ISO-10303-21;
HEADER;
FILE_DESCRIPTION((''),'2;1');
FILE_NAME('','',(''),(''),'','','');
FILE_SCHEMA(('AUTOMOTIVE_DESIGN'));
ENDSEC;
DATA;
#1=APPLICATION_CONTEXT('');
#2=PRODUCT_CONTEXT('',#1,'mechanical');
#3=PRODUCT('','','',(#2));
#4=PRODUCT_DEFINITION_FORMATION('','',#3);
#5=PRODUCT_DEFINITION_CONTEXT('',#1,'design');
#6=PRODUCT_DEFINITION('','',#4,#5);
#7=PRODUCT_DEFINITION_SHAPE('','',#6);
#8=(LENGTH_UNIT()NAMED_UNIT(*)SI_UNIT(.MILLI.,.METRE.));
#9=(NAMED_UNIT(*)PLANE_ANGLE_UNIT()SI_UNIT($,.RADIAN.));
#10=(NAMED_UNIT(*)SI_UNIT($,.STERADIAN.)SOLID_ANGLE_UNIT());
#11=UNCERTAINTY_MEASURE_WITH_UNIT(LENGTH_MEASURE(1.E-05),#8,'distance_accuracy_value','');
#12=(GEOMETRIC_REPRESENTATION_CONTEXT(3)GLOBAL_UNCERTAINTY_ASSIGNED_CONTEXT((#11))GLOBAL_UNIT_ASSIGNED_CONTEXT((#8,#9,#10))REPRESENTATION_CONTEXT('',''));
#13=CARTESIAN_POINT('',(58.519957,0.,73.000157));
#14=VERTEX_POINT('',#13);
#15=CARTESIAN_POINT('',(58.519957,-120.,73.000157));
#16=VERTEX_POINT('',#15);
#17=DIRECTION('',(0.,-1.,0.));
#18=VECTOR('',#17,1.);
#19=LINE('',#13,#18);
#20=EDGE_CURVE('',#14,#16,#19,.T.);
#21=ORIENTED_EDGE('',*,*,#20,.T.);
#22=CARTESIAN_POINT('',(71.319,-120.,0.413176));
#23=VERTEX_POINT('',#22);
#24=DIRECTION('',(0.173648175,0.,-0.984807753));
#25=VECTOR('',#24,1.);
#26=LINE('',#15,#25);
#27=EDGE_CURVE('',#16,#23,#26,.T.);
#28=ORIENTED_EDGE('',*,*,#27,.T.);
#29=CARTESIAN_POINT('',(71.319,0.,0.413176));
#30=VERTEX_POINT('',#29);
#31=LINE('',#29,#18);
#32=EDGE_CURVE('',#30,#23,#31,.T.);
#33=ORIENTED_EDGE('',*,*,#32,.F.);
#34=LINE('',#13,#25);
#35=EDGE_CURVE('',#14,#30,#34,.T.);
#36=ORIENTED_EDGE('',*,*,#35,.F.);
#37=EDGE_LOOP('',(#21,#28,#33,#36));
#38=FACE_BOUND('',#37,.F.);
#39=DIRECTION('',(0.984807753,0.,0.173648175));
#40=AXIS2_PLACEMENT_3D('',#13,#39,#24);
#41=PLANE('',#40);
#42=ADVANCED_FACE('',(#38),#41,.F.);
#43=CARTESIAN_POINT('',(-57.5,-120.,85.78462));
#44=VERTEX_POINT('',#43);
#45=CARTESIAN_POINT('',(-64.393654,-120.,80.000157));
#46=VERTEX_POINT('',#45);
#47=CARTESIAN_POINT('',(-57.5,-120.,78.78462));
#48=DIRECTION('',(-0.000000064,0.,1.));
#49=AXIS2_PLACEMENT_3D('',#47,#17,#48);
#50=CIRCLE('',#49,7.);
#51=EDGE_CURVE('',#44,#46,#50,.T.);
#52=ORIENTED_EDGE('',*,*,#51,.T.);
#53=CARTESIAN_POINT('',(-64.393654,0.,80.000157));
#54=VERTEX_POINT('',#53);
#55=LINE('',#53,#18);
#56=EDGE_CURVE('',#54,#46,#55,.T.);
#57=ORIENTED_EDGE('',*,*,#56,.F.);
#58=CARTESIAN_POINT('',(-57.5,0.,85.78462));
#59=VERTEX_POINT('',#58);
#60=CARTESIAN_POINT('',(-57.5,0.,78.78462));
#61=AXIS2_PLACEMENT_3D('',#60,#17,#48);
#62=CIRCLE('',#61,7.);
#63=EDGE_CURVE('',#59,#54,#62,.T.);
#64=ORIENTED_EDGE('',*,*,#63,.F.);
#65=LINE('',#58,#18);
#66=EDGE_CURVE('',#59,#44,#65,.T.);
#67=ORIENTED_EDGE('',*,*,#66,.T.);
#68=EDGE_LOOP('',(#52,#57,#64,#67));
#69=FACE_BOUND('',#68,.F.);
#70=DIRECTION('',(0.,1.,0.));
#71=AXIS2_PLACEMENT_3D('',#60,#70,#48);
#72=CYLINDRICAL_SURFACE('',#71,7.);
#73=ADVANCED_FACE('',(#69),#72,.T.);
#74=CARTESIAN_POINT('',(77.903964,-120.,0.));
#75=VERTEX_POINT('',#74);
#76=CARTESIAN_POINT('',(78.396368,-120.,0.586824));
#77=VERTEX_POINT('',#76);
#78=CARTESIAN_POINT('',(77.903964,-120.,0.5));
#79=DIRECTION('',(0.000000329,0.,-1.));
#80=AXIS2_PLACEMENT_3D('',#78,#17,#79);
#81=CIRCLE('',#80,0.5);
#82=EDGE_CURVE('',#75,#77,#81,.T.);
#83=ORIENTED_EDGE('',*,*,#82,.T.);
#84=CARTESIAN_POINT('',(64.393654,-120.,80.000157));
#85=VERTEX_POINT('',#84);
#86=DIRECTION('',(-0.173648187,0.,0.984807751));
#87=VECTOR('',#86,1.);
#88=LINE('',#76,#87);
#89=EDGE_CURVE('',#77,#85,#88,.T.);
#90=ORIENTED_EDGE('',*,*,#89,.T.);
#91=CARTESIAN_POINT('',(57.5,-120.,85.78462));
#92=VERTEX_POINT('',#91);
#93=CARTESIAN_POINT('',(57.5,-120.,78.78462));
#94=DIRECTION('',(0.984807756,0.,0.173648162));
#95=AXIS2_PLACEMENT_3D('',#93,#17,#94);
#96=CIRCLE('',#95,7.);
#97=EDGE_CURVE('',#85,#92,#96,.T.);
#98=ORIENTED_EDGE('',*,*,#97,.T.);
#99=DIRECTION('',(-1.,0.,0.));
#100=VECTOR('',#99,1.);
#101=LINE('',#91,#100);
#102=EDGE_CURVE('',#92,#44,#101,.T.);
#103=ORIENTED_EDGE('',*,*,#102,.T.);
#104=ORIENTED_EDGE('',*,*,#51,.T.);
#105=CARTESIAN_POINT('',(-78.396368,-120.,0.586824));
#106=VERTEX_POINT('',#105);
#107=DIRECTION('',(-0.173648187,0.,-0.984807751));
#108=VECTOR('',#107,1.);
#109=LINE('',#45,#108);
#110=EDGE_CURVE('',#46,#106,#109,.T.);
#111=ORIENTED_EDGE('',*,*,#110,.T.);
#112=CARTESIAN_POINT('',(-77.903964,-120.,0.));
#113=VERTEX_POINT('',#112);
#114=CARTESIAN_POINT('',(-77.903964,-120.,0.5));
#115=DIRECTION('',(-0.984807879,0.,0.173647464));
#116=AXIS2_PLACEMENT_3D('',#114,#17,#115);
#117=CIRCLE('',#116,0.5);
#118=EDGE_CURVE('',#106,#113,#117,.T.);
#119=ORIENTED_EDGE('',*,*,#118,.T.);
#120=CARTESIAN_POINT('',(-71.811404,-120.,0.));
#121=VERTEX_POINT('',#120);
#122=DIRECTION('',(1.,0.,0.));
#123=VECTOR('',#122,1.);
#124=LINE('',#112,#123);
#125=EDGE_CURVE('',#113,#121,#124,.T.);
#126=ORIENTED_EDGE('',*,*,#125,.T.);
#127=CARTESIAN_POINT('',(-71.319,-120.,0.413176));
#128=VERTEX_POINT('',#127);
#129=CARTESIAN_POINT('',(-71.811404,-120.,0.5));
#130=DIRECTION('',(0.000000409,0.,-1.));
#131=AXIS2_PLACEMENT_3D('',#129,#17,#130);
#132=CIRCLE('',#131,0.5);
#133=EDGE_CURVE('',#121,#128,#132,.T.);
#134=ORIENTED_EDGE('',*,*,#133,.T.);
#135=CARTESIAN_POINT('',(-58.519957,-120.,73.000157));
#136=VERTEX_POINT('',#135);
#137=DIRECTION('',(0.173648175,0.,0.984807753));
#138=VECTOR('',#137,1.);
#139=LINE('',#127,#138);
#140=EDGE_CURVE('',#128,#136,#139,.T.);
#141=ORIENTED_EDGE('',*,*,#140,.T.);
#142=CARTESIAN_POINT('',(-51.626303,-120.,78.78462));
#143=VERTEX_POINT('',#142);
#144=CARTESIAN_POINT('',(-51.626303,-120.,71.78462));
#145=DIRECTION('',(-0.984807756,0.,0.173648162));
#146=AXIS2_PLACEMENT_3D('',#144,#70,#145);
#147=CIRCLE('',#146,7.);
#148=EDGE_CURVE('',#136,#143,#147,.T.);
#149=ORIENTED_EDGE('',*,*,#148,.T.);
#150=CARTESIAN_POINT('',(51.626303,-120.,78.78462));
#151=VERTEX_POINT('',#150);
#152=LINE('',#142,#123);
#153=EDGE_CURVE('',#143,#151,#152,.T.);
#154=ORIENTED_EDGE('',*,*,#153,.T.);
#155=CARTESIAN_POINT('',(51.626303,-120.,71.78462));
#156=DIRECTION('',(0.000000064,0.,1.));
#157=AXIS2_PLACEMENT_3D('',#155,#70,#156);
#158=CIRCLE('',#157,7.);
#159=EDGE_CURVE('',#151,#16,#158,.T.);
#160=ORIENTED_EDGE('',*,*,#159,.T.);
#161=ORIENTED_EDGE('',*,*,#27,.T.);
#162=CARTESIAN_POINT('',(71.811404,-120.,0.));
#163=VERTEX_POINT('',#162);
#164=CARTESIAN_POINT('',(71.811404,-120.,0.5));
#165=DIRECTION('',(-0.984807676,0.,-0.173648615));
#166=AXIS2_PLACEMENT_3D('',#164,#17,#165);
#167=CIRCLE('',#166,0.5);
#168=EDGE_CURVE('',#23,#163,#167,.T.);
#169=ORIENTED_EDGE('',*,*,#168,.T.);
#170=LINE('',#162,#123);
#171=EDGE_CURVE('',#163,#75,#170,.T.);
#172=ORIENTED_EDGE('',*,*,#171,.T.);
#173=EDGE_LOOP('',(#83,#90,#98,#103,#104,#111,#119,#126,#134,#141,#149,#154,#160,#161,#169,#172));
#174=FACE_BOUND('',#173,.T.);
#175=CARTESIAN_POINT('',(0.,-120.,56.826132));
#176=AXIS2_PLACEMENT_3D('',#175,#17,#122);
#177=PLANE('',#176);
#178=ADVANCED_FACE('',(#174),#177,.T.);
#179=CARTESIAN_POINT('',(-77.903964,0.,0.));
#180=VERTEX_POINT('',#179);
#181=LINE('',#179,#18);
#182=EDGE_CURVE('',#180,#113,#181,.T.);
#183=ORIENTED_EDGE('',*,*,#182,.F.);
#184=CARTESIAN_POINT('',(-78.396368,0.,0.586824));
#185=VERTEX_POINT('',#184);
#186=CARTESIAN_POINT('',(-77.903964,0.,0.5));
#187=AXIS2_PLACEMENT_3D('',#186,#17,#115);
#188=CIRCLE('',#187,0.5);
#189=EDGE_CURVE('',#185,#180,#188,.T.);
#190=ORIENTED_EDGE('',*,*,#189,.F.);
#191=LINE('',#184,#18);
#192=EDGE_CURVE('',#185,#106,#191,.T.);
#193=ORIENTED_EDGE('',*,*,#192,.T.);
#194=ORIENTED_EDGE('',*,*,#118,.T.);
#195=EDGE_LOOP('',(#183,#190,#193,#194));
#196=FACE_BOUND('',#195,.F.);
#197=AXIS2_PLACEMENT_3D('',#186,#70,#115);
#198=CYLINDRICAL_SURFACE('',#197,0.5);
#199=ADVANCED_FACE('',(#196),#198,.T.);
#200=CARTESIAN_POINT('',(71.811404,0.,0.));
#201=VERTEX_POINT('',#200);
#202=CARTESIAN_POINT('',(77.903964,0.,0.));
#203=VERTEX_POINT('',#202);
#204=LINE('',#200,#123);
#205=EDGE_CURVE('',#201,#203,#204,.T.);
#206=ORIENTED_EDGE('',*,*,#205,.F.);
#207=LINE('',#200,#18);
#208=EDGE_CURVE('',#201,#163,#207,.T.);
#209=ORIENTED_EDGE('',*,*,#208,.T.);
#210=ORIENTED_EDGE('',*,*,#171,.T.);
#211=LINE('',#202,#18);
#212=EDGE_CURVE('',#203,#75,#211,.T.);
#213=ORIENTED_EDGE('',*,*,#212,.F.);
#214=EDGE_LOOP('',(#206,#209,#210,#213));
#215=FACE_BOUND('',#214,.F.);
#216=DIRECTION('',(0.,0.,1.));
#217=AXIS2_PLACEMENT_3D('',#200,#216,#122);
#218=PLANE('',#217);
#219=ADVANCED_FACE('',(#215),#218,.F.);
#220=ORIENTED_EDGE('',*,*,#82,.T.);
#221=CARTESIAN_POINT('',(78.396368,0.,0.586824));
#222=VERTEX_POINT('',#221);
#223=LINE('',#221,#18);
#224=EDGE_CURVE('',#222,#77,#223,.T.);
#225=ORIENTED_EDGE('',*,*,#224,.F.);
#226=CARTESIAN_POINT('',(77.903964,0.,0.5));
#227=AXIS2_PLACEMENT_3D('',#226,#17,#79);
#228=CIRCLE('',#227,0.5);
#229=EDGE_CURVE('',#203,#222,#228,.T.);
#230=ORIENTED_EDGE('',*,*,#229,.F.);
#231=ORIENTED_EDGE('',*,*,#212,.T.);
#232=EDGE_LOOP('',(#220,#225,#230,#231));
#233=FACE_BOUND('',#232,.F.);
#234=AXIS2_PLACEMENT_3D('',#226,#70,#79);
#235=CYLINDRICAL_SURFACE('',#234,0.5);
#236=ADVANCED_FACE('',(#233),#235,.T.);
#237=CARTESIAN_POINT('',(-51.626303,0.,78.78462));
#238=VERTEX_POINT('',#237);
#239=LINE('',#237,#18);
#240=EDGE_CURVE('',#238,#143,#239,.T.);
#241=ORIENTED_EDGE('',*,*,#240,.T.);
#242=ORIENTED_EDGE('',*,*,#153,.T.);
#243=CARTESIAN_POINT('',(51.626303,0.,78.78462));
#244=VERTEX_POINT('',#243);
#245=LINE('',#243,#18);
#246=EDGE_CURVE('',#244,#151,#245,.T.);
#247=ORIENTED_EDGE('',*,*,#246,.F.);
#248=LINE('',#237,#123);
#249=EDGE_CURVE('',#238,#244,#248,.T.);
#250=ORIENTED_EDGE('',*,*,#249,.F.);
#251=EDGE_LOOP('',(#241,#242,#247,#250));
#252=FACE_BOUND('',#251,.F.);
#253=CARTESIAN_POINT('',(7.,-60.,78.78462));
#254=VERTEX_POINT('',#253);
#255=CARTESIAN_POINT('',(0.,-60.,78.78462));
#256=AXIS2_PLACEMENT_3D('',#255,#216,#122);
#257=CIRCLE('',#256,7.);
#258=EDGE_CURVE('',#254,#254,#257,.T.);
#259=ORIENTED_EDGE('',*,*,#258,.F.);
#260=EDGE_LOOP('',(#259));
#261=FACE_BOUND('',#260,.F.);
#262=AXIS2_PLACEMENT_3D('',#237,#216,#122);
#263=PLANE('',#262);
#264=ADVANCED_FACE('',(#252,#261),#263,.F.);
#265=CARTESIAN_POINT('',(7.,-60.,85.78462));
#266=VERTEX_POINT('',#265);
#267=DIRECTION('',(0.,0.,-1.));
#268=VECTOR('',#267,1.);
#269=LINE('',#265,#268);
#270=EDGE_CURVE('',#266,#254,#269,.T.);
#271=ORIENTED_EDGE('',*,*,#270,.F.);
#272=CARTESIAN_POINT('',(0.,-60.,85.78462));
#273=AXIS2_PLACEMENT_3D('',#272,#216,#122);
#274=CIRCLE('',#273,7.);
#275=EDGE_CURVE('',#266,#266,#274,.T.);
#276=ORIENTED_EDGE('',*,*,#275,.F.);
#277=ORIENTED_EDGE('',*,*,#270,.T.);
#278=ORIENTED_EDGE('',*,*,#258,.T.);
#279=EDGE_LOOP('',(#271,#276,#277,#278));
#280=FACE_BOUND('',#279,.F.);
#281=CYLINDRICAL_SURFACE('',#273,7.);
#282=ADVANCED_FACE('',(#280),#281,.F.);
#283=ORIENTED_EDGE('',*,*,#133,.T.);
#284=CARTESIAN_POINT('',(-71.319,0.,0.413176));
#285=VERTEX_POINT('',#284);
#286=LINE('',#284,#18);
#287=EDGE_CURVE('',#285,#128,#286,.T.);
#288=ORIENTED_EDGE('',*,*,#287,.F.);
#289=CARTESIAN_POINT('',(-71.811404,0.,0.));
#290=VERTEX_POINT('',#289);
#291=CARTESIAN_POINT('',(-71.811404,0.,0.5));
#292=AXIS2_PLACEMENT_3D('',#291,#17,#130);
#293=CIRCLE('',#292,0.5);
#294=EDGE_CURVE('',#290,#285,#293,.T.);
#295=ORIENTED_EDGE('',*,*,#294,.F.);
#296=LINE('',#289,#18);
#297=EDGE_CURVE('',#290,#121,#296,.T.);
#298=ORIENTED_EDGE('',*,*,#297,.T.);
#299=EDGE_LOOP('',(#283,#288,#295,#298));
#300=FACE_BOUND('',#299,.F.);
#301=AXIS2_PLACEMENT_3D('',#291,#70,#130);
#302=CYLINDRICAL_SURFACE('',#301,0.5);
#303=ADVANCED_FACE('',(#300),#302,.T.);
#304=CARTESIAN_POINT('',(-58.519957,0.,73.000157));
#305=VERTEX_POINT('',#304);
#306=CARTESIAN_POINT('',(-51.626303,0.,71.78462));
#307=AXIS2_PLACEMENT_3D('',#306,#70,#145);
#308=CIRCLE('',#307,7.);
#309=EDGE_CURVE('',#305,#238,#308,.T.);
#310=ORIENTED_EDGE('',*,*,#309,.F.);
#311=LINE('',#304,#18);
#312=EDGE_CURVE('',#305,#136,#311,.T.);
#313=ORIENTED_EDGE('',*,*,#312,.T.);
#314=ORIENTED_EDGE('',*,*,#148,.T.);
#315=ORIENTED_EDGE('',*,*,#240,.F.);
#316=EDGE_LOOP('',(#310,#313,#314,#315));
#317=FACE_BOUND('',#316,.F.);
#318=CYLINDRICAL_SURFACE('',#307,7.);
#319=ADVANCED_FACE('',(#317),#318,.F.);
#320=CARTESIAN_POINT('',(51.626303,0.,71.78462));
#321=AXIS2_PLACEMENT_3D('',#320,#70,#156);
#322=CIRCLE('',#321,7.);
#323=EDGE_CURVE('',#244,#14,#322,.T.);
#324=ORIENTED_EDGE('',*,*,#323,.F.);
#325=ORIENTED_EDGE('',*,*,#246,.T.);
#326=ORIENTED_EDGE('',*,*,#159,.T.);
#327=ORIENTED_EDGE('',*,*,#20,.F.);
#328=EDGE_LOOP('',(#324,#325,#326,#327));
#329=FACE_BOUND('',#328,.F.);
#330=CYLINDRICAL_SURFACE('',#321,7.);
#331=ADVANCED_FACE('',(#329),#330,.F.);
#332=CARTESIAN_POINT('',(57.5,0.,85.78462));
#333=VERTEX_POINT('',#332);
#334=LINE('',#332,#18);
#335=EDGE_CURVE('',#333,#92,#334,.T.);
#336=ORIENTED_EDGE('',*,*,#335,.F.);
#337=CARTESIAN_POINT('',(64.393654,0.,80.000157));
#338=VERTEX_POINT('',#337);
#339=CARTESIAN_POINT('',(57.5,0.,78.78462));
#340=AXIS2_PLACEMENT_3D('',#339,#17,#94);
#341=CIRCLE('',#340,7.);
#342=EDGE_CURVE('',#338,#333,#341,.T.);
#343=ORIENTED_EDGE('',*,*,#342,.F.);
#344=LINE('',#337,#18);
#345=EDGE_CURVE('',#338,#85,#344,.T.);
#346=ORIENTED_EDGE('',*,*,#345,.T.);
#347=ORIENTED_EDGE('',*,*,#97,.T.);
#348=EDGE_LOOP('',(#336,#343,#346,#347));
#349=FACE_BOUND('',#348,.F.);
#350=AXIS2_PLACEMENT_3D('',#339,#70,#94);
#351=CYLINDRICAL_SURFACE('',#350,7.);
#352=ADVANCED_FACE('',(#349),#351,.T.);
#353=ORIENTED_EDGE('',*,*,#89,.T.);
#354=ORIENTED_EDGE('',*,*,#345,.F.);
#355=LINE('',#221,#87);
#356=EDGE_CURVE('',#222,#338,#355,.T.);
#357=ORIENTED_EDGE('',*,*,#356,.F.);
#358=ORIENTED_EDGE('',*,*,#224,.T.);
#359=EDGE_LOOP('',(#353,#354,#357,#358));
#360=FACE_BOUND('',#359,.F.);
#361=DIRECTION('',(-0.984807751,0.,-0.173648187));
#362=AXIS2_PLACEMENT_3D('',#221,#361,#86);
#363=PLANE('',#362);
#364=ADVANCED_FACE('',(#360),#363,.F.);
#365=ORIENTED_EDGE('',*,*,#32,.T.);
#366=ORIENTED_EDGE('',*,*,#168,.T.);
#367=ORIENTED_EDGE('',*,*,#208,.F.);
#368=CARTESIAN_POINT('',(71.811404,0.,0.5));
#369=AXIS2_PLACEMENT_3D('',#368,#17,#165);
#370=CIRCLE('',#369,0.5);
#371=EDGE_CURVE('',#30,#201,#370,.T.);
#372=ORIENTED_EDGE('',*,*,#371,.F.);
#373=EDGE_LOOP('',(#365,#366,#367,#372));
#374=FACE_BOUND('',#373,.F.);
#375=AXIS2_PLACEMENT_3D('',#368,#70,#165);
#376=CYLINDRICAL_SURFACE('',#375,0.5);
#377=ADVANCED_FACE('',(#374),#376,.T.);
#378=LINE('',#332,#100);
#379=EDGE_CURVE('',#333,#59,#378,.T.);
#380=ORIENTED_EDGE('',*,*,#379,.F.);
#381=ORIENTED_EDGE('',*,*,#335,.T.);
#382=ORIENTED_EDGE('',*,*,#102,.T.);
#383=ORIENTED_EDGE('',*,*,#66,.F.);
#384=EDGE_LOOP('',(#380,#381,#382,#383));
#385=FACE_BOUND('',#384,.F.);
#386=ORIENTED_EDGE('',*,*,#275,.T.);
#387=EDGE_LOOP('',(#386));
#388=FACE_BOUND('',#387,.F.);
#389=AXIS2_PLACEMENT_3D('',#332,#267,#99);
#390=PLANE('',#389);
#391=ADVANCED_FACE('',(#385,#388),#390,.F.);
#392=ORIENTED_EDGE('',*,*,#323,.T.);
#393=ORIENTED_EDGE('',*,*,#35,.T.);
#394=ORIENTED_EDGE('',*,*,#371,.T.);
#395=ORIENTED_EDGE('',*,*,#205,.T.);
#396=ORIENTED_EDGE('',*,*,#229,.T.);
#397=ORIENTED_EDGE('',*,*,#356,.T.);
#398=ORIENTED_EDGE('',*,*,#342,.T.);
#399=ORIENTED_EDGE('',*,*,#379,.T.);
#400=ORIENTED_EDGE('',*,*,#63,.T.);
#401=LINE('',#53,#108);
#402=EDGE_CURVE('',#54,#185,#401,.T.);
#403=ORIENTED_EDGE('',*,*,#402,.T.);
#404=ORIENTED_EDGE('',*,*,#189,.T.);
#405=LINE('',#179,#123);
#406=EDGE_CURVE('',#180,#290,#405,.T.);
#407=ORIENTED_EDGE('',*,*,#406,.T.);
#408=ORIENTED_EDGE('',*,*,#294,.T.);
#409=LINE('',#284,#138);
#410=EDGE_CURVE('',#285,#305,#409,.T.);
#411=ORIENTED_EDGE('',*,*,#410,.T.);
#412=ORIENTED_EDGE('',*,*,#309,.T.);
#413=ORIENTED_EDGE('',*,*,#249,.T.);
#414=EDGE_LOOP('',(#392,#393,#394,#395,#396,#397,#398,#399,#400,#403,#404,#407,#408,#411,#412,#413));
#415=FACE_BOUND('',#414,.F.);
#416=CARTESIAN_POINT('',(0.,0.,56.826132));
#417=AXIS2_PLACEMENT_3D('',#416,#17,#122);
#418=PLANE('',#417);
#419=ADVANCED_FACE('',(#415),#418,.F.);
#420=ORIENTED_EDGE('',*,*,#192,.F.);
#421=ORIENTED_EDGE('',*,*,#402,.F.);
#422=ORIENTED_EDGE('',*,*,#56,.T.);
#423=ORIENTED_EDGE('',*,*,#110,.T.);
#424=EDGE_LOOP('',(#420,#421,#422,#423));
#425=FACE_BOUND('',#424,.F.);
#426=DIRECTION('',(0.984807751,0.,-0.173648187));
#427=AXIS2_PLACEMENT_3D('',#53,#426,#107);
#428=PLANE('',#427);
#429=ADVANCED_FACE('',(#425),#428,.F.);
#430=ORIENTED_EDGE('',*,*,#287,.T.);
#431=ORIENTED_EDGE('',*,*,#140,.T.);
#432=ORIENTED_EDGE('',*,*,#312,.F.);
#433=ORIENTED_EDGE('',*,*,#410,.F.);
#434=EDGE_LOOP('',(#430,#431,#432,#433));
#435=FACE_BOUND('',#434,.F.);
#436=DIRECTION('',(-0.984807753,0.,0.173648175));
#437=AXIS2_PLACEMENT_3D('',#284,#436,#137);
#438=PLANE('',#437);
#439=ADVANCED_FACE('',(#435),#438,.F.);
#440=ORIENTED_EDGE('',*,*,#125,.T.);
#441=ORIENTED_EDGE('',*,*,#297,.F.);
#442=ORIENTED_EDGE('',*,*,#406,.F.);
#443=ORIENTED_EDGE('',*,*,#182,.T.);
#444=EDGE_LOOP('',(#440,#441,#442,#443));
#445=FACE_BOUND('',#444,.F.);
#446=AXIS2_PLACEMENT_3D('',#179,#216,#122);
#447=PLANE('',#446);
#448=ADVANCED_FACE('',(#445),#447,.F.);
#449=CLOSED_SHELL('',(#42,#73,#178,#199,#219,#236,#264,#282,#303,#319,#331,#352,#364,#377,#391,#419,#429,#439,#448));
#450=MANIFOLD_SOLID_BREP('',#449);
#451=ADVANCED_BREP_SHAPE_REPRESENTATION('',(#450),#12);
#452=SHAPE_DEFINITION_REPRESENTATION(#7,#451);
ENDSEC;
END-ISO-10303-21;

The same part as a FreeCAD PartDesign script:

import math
import FreeCAD as App
import Part
import Sketcher

V = App.Vector
Q = App.Units.Quantity

doc = App.newDocument("Part")
body = doc.addObject("PartDesign::Body", "Body")

# Sketch on XZ plane
sketch1 = body.newObject("Sketcher::SketchObject", "Sketch")
sketch1.AttachmentSupport = (doc.getObject("XZ_Plane"), [""])
sketch1.MapMode = "FlatFace"
sketch1.addGeometry(Part.ArcOfCircle(Part.Circle(V(-71.8, 0.5, 0), V(0, 0, 1), 0.5), math.radians(-90), math.radians(-10)), False)
sketch1.addGeometry(Part.LineSegment(V(-71.3, 0.4, 0), V(-58.5, 73, 0)), False)
sketch1.addGeometry(Part.ArcOfCircle(Part.Circle(V(-51.6, 71.8, 0), V(0, 0, 1), 7), math.radians(90), math.radians(170)), False)
sketch1.addGeometry(Part.LineSegment(V(-51.6, 78.8, 0), V(51.6, 78.8, 0)), False)
sketch1.addGeometry(Part.ArcOfCircle(Part.Circle(V(51.6, 71.8, 0), V(0, 0, 1), 7), math.radians(10), math.radians(90)), False)
sketch1.addGeometry(Part.LineSegment(V(58.5, 73, 0), V(71.3, 0.4, 0)), False)
sketch1.addGeometry(Part.ArcOfCircle(Part.Circle(V(71.8, 0.5, 0), V(0, 0, 1), 0.5), math.radians(-170), math.radians(-90)), False)
sketch1.addGeometry(Part.LineSegment(V(71.8, 0, 0), V(77.9, 0, 0)), False)
sketch1.addGeometry(Part.ArcOfCircle(Part.Circle(V(77.9, 0.5, 0), V(0, 0, 1), 0.5), math.radians(-90), math.radians(10)), False)
sketch1.addGeometry(Part.LineSegment(V(78.4, 0.6, 0), V(64.4, 80, 0)), False)
sketch1.addGeometry(Part.ArcOfCircle(Part.Circle(V(57.5, 78.8, 0), V(0, 0, 1), 7), math.radians(10), math.radians(90)), False)
sketch1.addGeometry(Part.LineSegment(V(57.5, 85.8, 0), V(-57.5, 85.8, 0)), False)
sketch1.addGeometry(Part.ArcOfCircle(Part.Circle(V(-57.5, 78.8, 0), V(0, 0, 1), 7), math.radians(90), math.radians(170)), False)
sketch1.addGeometry(Part.LineSegment(V(-64.4, 80, 0), V(-78.4, 0.6, 0)), False)
sketch1.addGeometry(Part.ArcOfCircle(Part.Circle(V(-77.9, 0.5, 0), V(0, 0, 1), 0.5), math.radians(170), math.radians(270)), False)
sketch1.addGeometry(Part.LineSegment(V(-77.9, 0, 0), V(-71.8, 0, 0)), False)
sketch1.addConstraint(Sketcher.Constraint("Tangent", 0, 2, 1, 1))
sketch1.addConstraint(Sketcher.Constraint("Tangent", 1, 2, 2, 2))
sketch1.addConstraint(Sketcher.Constraint("Tangent", 2, 1, 3, 1))
sketch1.addConstraint(Sketcher.Constraint("Tangent", 3, 2, 4, 2))
sketch1.addConstraint(Sketcher.Constraint("Tangent", 4, 1, 5, 1))
sketch1.addConstraint(Sketcher.Constraint("Tangent", 5, 2, 6, 1))
sketch1.addConstraint(Sketcher.Constraint("Tangent", 6, 2, 7, 1))
sketch1.addConstraint(Sketcher.Constraint("Tangent", 7, 2, 8, 1))
sketch1.addConstraint(Sketcher.Constraint("Tangent", 8, 2, 9, 1))
sketch1.addConstraint(Sketcher.Constraint("Tangent", 9, 2, 10, 1))
sketch1.addConstraint(Sketcher.Constraint("Tangent", 10, 2, 11, 1))
sketch1.addConstraint(Sketcher.Constraint("Tangent", 11, 2, 12, 1))
sketch1.addConstraint(Sketcher.Constraint("Tangent", 12, 2, 13, 1))
sketch1.addConstraint(Sketcher.Constraint("Tangent", 13, 2, 14, 1))
sketch1.addConstraint(Sketcher.Constraint("Tangent", 14, 2, 15, 1))
sketch1.addConstraint(Sketcher.Constraint("Tangent", 15, 2, 0, 1))
sketch1.addConstraint(Sketcher.Constraint("Horizontal", 3))
sketch1.addConstraint(Sketcher.Constraint("Horizontal", 7))
sketch1.addConstraint(Sketcher.Constraint("Horizontal", 11))
sketch1.addConstraint(Sketcher.Constraint("Horizontal", 15))
sketch1.addConstraint(Sketcher.Constraint("Equal", 2, 4))
sketch1.addConstraint(Sketcher.Constraint("Equal", 0, 6))
sketch1.addConstraint(Sketcher.Constraint("Equal", 6, 8))
sketch1.addConstraint(Sketcher.Constraint("Equal", 4, 10))
sketch1.addConstraint(Sketcher.Constraint("Equal", 10, 12))
sketch1.addConstraint(Sketcher.Constraint("Equal", 8, 14))
sketch1.addConstraint(Sketcher.Constraint("Symmetric", 7, 2, 14, 2, -1, 1))
sketch1.addConstraint(Sketcher.Constraint("Symmetric", 0, 3, 6, 3, -2))
sketch1.addConstraint(Sketcher.Constraint("Parallel", 5, 9))
sketch1.addConstraint(Sketcher.Constraint("Parallel", 1, 13))
sketch1.addConstraint(Sketcher.Constraint("Horizontal", 12, 3, 2, 1))
sketch1.addConstraint(Sketcher.Constraint("Horizontal", 1, 2, 4, 1))
sketch1.addConstraint(Sketcher.Constraint("Radius", 2, Q("7 mm")))
sketch1.addConstraint(Sketcher.Constraint("Radius", 0, Q("0.5 mm")))
sketch1.addConstraint(Sketcher.Constraint("DistanceX", 11, 2, 11, 1, Q("115 mm")))
sketch1.addConstraint(Sketcher.Constraint("Angle", 1, Q("80 deg")))
sketch1.addConstraint(Sketcher.Constraint("DistanceX", 0, 2, -1, 1, Q("71.319 mm")))
sketch1.addConstraint(Sketcher.Constraint("DistanceX", 7, 1, 7, 2, Q("6.09256 mm")))
pad1 = body.newObject("PartDesign::Pad", "Pad")
pad1.Profile = sketch1
pad1.Length = 120

# Sketch on XY plane
sketch2 = body.newObject("Sketcher::SketchObject", "Sketch001")
sketch2.AttachmentSupport = (doc.getObject("XY_Plane"), [""])
sketch2.MapMode = "FlatFace"
sketch2.AttachmentOffset = App.Placement(V(0, 0, 85.78462), App.Rotation())
sketch2.addGeometry(Part.Circle(V(0, -60, 0), V(0, 0, 1), 7), False)
sketch2.addConstraint(Sketcher.Constraint("PointOnObject", 0, 3, -2))
sketch2.addConstraint(Sketcher.Constraint("Diameter", 0, Q("14 mm")))
sketch2.addConstraint(Sketcher.Constraint("DistanceY", 0, 3, -1, 1, Q("60 mm")))
pocket1 = body.newObject("PartDesign::Pocket", "Pocket")
pocket1.Profile = sketch2
pocket1.Length = 25

doc.recompute()
